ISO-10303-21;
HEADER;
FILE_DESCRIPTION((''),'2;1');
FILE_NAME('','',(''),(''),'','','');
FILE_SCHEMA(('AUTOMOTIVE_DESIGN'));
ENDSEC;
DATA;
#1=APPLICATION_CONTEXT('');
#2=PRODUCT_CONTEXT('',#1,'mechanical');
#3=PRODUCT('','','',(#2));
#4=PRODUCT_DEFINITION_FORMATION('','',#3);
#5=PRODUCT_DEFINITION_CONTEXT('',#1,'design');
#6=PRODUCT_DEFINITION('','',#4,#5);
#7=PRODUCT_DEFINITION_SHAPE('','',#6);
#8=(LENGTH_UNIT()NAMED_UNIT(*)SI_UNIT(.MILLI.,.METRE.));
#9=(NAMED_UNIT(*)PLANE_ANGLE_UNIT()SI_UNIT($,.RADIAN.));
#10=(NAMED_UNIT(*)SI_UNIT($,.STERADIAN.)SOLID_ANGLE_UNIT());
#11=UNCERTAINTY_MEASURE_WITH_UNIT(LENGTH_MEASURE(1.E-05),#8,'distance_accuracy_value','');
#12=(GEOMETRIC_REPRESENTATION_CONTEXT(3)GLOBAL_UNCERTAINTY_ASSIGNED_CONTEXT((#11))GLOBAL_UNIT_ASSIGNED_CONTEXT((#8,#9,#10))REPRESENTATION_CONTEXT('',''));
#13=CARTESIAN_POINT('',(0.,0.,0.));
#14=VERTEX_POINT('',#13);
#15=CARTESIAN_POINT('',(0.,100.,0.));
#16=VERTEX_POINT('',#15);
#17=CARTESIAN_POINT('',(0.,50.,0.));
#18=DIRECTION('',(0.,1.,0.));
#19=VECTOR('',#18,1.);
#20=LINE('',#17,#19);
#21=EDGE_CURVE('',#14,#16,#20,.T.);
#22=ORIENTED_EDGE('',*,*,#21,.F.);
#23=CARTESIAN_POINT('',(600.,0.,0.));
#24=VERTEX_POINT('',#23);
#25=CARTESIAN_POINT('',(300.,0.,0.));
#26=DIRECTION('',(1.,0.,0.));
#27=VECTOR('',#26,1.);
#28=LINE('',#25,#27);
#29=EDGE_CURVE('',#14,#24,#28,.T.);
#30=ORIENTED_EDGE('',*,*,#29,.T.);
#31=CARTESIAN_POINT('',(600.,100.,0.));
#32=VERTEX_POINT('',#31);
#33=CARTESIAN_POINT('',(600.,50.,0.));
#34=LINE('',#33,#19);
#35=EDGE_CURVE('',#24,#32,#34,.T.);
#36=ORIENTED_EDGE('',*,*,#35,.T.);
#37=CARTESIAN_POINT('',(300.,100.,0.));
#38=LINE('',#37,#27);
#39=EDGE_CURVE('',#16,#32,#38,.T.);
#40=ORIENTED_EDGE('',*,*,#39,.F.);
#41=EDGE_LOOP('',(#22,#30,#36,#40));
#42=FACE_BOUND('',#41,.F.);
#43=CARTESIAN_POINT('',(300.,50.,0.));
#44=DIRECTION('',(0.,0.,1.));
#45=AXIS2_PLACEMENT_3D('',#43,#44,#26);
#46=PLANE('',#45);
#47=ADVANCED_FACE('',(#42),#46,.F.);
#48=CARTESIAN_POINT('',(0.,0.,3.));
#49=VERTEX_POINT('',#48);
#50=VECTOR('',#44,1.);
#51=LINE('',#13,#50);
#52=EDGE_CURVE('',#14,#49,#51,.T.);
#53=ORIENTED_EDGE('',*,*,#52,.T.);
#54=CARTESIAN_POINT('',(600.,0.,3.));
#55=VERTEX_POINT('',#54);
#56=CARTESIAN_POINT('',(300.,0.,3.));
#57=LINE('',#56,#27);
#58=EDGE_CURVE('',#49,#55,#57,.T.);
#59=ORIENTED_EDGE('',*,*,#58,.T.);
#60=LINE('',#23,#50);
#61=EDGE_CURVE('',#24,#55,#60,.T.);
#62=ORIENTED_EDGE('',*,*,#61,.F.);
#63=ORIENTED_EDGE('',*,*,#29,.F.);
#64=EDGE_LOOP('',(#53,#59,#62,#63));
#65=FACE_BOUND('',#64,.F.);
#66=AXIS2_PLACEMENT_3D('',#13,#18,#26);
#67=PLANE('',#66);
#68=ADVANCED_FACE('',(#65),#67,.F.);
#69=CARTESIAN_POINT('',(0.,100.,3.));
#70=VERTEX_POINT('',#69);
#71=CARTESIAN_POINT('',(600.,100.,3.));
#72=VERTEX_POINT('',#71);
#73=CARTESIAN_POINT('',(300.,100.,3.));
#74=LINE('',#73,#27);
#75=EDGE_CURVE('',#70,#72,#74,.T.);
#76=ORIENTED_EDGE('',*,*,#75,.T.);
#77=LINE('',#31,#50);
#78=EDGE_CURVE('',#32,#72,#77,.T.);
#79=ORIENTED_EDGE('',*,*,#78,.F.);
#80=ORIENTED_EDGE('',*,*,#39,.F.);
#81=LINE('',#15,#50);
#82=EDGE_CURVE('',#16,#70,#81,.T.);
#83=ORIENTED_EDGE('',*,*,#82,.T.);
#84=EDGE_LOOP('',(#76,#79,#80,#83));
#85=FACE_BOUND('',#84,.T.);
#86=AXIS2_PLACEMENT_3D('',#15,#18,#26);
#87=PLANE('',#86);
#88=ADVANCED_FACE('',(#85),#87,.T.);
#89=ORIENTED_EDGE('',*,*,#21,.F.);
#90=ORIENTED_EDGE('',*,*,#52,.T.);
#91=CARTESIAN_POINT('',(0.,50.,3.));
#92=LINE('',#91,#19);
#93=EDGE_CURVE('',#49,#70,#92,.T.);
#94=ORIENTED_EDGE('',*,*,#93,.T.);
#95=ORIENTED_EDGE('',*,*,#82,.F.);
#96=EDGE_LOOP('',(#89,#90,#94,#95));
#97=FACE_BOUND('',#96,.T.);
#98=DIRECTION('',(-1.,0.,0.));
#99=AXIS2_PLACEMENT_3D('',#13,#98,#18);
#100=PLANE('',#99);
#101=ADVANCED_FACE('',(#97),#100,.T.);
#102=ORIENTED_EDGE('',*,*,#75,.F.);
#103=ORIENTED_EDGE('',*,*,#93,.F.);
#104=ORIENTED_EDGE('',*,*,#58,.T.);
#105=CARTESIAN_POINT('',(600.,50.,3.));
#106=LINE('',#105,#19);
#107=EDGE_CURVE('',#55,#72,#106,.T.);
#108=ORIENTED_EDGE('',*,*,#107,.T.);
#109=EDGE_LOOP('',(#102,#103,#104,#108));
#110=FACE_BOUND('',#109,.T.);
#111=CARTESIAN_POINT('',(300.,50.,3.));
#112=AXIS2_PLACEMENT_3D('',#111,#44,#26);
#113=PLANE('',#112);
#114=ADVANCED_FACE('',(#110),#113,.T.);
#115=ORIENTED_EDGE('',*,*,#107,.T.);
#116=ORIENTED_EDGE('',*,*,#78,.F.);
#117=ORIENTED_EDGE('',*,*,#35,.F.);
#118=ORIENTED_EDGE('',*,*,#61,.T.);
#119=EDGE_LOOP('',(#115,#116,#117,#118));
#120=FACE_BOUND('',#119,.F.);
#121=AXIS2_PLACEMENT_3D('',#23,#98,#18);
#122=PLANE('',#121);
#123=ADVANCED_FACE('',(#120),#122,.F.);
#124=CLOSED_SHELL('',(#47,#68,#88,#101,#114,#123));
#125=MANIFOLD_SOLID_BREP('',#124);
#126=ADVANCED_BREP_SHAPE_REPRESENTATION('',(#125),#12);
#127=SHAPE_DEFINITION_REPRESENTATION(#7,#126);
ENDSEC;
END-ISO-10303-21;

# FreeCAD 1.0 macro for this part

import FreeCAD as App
import Part
import Sketcher

doc = App.newDocument("Part")
body = doc.addObject("PartDesign::Body", "Body")

sketch1 = body.newObject("Sketcher::SketchObject", "Sketch")
sketch1.AttachmentSupport = (doc.getObject("XY_Plane"), [""])
sketch1.MapMode = "FlatFace"
sketch1.addGeometry([
    Part.LineSegment(App.Vector(0, 100, 0), App.Vector(0, 0, 0)),
    Part.LineSegment(App.Vector(0, 0, 0), App.Vector(600, 0, 0)),
    Part.LineSegment(App.Vector(600, 0, 0), App.Vector(600, 100, 0)),
    Part.LineSegment(App.Vector(600, 100, 0), App.Vector(0, 100, 0)),
], False)
sketch1.addConstraint([
    Sketcher.Constraint("Coincident", 0, 2, 1, 1),
    Sketcher.Constraint("Coincident", 1, 2, 2, 1),
    Sketcher.Constraint("Coincident", 2, 2, 3, 1),
    Sketcher.Constraint("Coincident", 3, 2, 0, 1),
    Sketcher.Constraint("Vertical", 0),
    Sketcher.Constraint("Horizontal", 1),
    Sketcher.Constraint("Vertical", 2),
    Sketcher.Constraint("Horizontal", 3),
    Sketcher.Constraint("Coincident", 0, 2, -1, 1),
    Sketcher.Constraint("DistanceX", 1, 1, 1, 2, 600.0),
    Sketcher.Constraint("DistanceY", 0, 2, 0, 1, 100.0),
])
pad1 = body.newObject("PartDesign::Pad", "Pad")
pad1.Profile = sketch1
pad1.Length = 3

doc.recompute()
